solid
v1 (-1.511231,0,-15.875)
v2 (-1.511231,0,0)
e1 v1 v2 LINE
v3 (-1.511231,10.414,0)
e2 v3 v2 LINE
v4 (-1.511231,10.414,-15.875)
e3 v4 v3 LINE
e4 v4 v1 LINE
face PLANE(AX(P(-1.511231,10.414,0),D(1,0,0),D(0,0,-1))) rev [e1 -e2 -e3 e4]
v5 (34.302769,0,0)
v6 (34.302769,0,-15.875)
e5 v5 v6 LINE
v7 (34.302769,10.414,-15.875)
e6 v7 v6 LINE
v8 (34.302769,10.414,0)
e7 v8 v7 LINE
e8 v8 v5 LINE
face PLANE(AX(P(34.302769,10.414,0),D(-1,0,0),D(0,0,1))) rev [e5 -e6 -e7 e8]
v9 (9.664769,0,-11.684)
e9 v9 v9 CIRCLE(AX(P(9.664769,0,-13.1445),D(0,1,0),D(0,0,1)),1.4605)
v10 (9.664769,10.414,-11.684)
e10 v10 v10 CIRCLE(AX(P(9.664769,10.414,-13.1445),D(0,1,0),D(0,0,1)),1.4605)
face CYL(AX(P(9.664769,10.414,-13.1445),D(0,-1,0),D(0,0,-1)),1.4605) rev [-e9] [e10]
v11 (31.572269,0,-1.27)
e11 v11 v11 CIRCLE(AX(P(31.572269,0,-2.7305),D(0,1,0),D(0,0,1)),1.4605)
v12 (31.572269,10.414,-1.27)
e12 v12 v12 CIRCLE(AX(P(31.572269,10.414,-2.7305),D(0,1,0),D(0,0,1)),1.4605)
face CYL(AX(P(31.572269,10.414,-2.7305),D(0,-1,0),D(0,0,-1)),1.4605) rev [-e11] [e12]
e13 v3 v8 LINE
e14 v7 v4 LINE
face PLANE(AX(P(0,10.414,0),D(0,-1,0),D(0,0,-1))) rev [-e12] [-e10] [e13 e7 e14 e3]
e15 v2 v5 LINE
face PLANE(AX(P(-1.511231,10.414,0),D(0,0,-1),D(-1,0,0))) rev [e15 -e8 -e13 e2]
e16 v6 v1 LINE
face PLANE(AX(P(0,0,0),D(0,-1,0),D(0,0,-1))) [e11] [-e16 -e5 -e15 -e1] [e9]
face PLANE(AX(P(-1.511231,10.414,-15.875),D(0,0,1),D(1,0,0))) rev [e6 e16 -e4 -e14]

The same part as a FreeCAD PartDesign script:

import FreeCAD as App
import Part
import Sketcher
from FreeCAD import Vector
Q = App.Units.Quantity


def add_polygon(sketch, points):
    """Adds a closed chain of lines whose ends are joined by coincident constraints."""
    first, n = sketch.GeometryCount, len(points)
    for a, b in zip(points, points[1:] + points[:1]):
        sketch.addGeometry(Part.LineSegment(App.Vector(*a, 0), App.Vector(*b, 0)), False)
    for i in range(n):
        sketch.addConstraint(Sketcher.Constraint("Coincident", first + i, 2, first + (i + 1) % n, 1))

doc = App.newDocument("Part")
body = doc.addObject("PartDesign::Body", "Body")

# Sketch on XZ plane
sketch1 = doc.addObject("Sketcher::SketchObject", "Sketch")
body.addObject(sketch1)
sketch1.AttachmentSupport = (doc.XZ_Plane, [""])
sketch1.MapMode = "FlatFace"
add_polygon(sketch1, [(-1.511231, -15.875), (-1.511231, 0), (34.302769, 0), (34.302769, -15.875)])  # lines 0-3
sketch1.addGeometry(Part.Circle(Vector(31.572269, -2.7305, 0), Vector(0, 0, 1), 1.4605), False)  # 4
sketch1.addGeometry(Part.Circle(Vector(9.664769, -13.1445, 0), Vector(0, 0, 1), 1.4605), False)  # 5
sketch1.addConstraint([
    Sketcher.Constraint("Vertical", 0),
    Sketcher.Constraint("Horizontal", 1),
    Sketcher.Constraint("Vertical", 2),
    Sketcher.Constraint("Horizontal", 3),
    Sketcher.Constraint("Equal", 4, 5),
    Sketcher.Constraint("PointOnObject", 0, 2, -1),
    Sketcher.Constraint("Diameter", 4, Q("0.115 in")),
    Sketcher.Constraint("DistanceX", 1, 1, 1, 2, Q("1.41 in")),
    Sketcher.Constraint("DistanceY", 0, 1, 0, 2, Q("0.625 in")),
    Sketcher.Constraint("DistanceY", 5, 3, 4, 3, Q("0.41 in")),
    Sketcher.Constraint("DistanceX", 0, 2, 5, 3, Q("0.44 in")),
    Sketcher.Constraint("DistanceY", 4, 3, -1, 1, Q("0.1075 in")),
    Sketcher.Constraint("DistanceX", 5, 3, 4, 3, Q("0.8625 in")),
    Sketcher.Constraint("DistanceX", -1, 1, 4, 3, 31.572269),
])
pad1 = doc.addObject("PartDesign::Pad", "Pad")
body.addObject(pad1)
pad1.Profile = sketch1
pad1.Length = Q("0.41 in")
pad1.Reversed = True

doc.recompute()
